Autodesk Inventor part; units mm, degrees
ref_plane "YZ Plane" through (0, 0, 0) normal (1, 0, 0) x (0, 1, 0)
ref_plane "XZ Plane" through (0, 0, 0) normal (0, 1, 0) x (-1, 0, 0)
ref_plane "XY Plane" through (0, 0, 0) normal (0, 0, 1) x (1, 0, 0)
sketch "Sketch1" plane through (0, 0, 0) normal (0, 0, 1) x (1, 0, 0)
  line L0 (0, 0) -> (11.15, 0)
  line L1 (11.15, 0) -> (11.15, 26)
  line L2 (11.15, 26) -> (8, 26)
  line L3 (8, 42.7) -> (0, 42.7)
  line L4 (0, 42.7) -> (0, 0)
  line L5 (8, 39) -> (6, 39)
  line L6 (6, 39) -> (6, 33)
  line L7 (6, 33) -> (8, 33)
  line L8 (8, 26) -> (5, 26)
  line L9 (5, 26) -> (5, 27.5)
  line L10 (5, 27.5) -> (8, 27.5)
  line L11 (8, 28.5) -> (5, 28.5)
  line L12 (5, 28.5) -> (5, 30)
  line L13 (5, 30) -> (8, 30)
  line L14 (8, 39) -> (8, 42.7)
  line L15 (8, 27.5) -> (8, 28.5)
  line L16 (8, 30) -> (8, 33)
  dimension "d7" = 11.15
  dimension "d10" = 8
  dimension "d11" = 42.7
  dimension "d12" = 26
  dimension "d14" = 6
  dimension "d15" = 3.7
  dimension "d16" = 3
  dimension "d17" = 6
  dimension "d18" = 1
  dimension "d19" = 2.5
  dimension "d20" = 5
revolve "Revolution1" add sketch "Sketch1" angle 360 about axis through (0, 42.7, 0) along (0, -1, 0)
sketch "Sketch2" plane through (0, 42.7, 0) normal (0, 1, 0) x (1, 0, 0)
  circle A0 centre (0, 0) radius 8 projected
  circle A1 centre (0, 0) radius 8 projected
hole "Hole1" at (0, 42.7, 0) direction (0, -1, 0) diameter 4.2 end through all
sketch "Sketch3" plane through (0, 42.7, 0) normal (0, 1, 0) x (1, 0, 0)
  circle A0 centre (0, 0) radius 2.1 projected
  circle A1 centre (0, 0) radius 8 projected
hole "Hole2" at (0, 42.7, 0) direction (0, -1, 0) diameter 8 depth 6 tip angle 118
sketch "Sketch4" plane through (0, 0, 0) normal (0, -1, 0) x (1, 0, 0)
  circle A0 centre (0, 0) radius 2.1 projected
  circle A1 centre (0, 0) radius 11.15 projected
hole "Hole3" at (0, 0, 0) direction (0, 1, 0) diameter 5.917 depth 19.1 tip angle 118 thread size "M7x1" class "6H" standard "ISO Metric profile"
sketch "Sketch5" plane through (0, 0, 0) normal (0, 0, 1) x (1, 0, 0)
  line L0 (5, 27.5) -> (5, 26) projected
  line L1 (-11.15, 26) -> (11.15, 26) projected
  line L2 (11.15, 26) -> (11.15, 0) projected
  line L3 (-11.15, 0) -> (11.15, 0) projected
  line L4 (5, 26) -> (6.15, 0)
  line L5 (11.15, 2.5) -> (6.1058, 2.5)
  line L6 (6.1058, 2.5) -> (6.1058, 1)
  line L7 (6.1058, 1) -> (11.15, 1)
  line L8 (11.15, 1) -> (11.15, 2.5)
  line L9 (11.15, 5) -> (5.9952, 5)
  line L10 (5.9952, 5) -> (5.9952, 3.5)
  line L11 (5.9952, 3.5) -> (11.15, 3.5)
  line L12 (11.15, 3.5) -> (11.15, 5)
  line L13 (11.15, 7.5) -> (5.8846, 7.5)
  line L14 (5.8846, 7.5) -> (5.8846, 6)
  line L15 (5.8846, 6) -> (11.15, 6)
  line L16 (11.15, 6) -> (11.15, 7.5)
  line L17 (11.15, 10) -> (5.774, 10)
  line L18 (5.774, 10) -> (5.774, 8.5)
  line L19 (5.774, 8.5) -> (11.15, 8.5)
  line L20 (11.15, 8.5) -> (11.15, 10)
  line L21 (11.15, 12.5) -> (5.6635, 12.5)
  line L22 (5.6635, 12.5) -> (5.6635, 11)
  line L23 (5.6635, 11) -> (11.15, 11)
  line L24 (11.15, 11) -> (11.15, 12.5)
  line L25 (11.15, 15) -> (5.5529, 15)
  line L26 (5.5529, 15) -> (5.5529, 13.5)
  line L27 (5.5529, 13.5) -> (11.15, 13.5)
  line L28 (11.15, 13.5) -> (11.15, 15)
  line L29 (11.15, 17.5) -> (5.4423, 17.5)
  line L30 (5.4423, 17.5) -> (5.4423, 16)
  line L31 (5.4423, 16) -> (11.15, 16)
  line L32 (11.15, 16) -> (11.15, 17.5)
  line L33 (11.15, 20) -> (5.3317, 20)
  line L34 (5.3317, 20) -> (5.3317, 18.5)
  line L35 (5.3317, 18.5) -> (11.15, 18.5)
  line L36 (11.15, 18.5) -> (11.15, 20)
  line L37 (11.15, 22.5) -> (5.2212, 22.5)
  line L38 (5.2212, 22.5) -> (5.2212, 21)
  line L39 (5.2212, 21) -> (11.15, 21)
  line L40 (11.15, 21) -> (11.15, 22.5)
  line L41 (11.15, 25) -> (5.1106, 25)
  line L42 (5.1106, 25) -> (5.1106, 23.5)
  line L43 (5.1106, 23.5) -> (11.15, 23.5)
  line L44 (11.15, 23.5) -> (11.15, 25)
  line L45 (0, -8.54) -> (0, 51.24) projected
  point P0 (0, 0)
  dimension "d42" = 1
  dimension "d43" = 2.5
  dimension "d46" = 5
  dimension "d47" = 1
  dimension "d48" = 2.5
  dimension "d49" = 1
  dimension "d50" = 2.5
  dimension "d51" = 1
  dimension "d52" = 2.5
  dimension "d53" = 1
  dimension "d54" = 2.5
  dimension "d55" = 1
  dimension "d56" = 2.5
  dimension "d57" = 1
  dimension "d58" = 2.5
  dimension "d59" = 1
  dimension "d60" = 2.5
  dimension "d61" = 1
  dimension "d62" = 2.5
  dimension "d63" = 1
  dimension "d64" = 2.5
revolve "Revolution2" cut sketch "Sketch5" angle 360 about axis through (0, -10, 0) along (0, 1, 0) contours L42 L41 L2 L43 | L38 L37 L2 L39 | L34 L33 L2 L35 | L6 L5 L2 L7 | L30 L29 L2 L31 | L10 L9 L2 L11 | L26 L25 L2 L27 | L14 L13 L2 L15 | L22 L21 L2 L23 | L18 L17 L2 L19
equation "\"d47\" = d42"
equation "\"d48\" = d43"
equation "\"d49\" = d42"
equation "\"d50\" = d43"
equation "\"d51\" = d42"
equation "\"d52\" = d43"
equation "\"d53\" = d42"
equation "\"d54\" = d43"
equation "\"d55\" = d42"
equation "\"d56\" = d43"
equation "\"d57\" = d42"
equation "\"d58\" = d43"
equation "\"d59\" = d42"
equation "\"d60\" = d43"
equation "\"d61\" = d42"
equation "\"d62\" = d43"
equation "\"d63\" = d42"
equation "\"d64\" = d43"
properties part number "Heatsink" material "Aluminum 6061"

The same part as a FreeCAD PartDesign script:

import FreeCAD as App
import Part
import Sketcher

V = App.Vector


def add_polygon(sketch, points):
    """Adds a closed chain of lines whose ends are joined by coincident constraints."""
    first, n = sketch.GeometryCount, len(points)
    for a, b in zip(points, points[1:] + points[:1]):
        sketch.addGeometry(Part.LineSegment(App.Vector(*a, 0), App.Vector(*b, 0)), False)
    for i in range(n):
        sketch.addConstraint(Sketcher.Constraint("Coincident", first + i, 2, first + (i + 1) % n, 1))

doc = App.newDocument("Part")
params = doc.addObject("Spreadsheet::Sheet", "Params")
for row, (alias, value) in enumerate([
    ("sketch1_width", "3 mm"),
    ("sketch1_width2", "8 mm"),
    ("sketch1_height", "26 mm"),
    ("sketch1_height2", "1 mm"),
    ("sketch1_height3", "6 mm"),
    ("revolution_angle", "360 deg"),
    ("sketch2_diameter", "4.2 mm"),
    ("hole_diameter", "4.2 mm"),
    ("sketch3_diameter", "8 mm"),
    ("hole2_diameter", "8 mm"),
    ("hole2_depth", "6 mm"),
    ("hole3_diameter", "5.917 mm"),
    ("hole3_depth", "19.1 mm"),
    ("groove_angle", "360 deg"),
], start=1):
    params.set(f"A{row}", alias)
    params.set(f"B{row}", "=" + value)
    params.setAlias(f"B{row}", alias)

body = doc.addObject("PartDesign::Body", "Body")

sketch1 = body.newObject("Sketcher::SketchObject", "Sketch")
sketch1.AttachmentSupport = (doc.getObject("XY_Plane"), [""])
sketch1.MapMode = "FlatFace"
add_polygon(sketch1, [(0, 42.7), (0, 0), (11.2, 0), (11.2, 26), (5, 26), (5, 27.5), (8, 27.5), (8, 28.5), (5, 28.5), (5, 30), (8, 30), (8, 33), (6, 33), (6, 39), (8, 39), (8, 42.7)])
sketch1.addConstraint([
    Sketcher.Constraint("Vertical", 0),
    Sketcher.Constraint("Horizontal", 1),
    Sketcher.Constraint("Vertical", 2),
    Sketcher.Constraint("Horizontal", 3),
    Sketcher.Constraint("Vertical", 4),
    Sketcher.Constraint("Horizontal", 5),
    Sketcher.Constraint("Vertical", 6),
    Sketcher.Constraint("Horizontal", 7),
    Sketcher.Constraint("Vertical", 8),
    Sketcher.Constraint("Horizontal", 9),
    Sketcher.Constraint("Vertical", 10),
    Sketcher.Constraint("Horizontal", 11),
    Sketcher.Constraint("Vertical", 12),
    Sketcher.Constraint("Horizontal", 13),
    Sketcher.Constraint("Vertical", 14),
    Sketcher.Constraint("Horizontal", 15),
    Sketcher.Constraint("Coincident", 0, 2, -1, 1),
    Sketcher.Constraint("Vertical", 4, 2, 7, 2),
    Sketcher.Constraint("Vertical", 6, 2, 9, 2),
    Sketcher.Constraint("Vertical", 10, 2, 13, 2),
    Sketcher.Constraint("Equal", 4, 8),
    Sketcher.Constraint("Equal", 9, 10),
    Sketcher.Constraint("DistanceX", 5, 1, 5, 2, 3.0),
    Sketcher.Constraint("DistanceX", 15, 2, 15, 1, 8.0),
    Sketcher.Constraint("DistanceY", 2, 1, 2, 2, 26.0),
    Sketcher.Constraint("DistanceY", 6, 1, 6, 2, 1.0),
    Sketcher.Constraint("DistanceY", 12, 1, 12, 2, 6.0),
    Sketcher.Constraint("DistanceY", 0, 2, 0, 1, 42.7),
    Sketcher.Constraint("DistanceY", 14, 1, 14, 2, 3.7),
    Sketcher.Constraint("DistanceX", -1, 1, 11, 2, 6.0),
    Sketcher.Constraint("DistanceX", 1, 1, 1, 2, 11.15),
])
sketch1.setExpression("Constraints[38]", "Params.sketch1_width")
sketch1.setExpression("Constraints[39]", "Params.sketch1_width2")
sketch1.setExpression("Constraints[40]", "Params.sketch1_height")
sketch1.setExpression("Constraints[41]", "Params.sketch1_height2")
sketch1.setExpression("Constraints[42]", "Params.sketch1_height3")
revolution = body.newObject("PartDesign::Revolution", "Revolution")
revolution.Profile = sketch1
revolution.ReferenceAxis = (sketch1, ["V_Axis"])
revolution.setExpression("Angle", "Params.revolution_angle")

sketch2 = body.newObject("Sketcher::SketchObject", "Sketch001")
sketch2.AttachmentSupport = (doc.getObject("XZ_Plane"), [""])
sketch2.MapMode = "FlatFace"
sketch2.AttachmentOffset = App.Placement(V(0, 0, -42.7), App.Rotation())
sketch2.addGeometry(Part.Circle(V(0, 0, 0), V(0, 0, 1), 2.1), False)
sketch2.addConstraint([
    Sketcher.Constraint("Coincident", 0, 3, -1, 1),
    Sketcher.Constraint("Diameter", 0, 4.2),
])
sketch2.setExpression("Constraints[1]", "Params.sketch2_diameter")
doc.recompute()
hole = body.newObject("PartDesign::Hole", "Hole")
hole.Profile = sketch2
hole.ThreadType = "None"
hole.setExpression("Diameter", "Params.hole_diameter")
hole.DepthType = "ThroughAll"
hole.Reversed = True

sketch3 = body.newObject("Sketcher::SketchObject", "Sketch002")
sketch3.AttachmentSupport = (doc.getObject("XZ_Plane"), [""])
sketch3.MapMode = "FlatFace"
sketch3.AttachmentOffset = App.Placement(V(0, 0, -42.7), App.Rotation())
sketch3.addGeometry(Part.Circle(V(0, 0, 0), V(0, 0, 1), 4), False)
sketch3.addConstraint([
    Sketcher.Constraint("Coincident", 0, 3, -1, 1),
    Sketcher.Constraint("Diameter", 0, 8.0),
])
sketch3.setExpression("Constraints[1]", "Params.sketch3_diameter")
doc.recompute()
hole2 = body.newObject("PartDesign::Hole", "Hole001")
hole2.Profile = sketch3
hole2.ThreadType = "None"
hole2.setExpression("Diameter", "Params.hole2_diameter")
hole2.DepthType = "Dimension"
hole2.setExpression("Depth", "Params.hole2_depth")
hole2.DrillPoint = "Angled"
hole2.DrillPointAngle = 118
hole2.Reversed = True

sketch4 = body.newObject("Sketcher::SketchObject", "Sketch003")
sketch4.AttachmentSupport = (doc.getObject("XZ_Plane"), [""])
sketch4.MapMode = "FlatFace"
sketch4.addGeometry(Part.Circle(V(0, 0, 0), V(0, 0, 1), 3), False)
sketch4.addConstraint([
    Sketcher.Constraint("Coincident", 0, 3, -1, 1),
    Sketcher.Constraint("Diameter", 0, 5.917),
])
doc.recompute()
hole3 = body.newObject("PartDesign::Hole", "Hole002")
hole3.Profile = sketch4
hole3.ThreadType = "None"
hole3.setExpression("Diameter", "Params.hole3_diameter")
hole3.DepthType = "Dimension"
hole3.setExpression("Depth", "Params.hole3_depth")
hole3.DrillPoint = "Angled"
hole3.DrillPointAngle = 118

sketch5 = body.newObject("Sketcher::SketchObject", "Sketch004")
sketch5.AttachmentSupport = (doc.getObject("XY_Plane"), [""])
sketch5.MapMode = "FlatFace"
add_polygon(sketch5, [(5.1, 25), (5.1, 23.5), (11.2, 23.5), (11.2, 25)])
add_polygon(sketch5, [(5.2, 22.5), (5.2, 21), (11.2, 21), (11.2, 22.5)])
add_polygon(sketch5, [(5.3, 20), (5.3, 18.5), (11.2, 18.5), (11.2, 20)])
add_polygon(sketch5, [(6.1, 2.5), (6.1, 1), (11.2, 1), (11.2, 2.5)])
add_polygon(sketch5, [(5.4, 17.5), (5.4, 16), (11.2, 16), (11.2, 17.5)])
add_polygon(sketch5, [(6, 5), (6, 3.5), (11.2, 3.5), (11.2, 5)])
add_polygon(sketch5, [(5.6, 15), (5.6, 13.5), (11.2, 13.5), (11.2, 15)])
add_polygon(sketch5, [(5.9, 7.5), (5.9, 6), (11.2, 6), (11.2, 7.5)])
add_polygon(sketch5, [(5.7, 12.5), (5.7, 11), (11.2, 11), (11.2, 12.5)])
add_polygon(sketch5, [(5.8, 10), (5.8, 8.5), (11.2, 8.5), (11.2, 10)])
sketch5.addConstraint([
    Sketcher.Constraint("Vertical", 0),
    Sketcher.Constraint("Horizontal", 1),
    Sketcher.Constraint("Vertical", 2),
    Sketcher.Constraint("Horizontal", 3),
    Sketcher.Constraint("Vertical", 4),
    Sketcher.Constraint("Horizontal", 5),
    Sketcher.Constraint("Vertical", 6),
    Sketcher.Constraint("Horizontal", 7),
    Sketcher.Constraint("Vertical", 8),
    Sketcher.Constraint("Horizontal", 9),
    Sketcher.Constraint("Vertical", 10),
    Sketcher.Constraint("Horizontal", 11),
    Sketcher.Constraint("Vertical", 12),
    Sketcher.Constraint("Horizontal", 13),
    Sketcher.Constraint("Vertical", 14),
    Sketcher.Constraint("Horizontal", 15),
    Sketcher.Constraint("Vertical", 16),
    Sketcher.Constraint("Horizontal", 17),
    Sketcher.Constraint("Vertical", 18),
    Sketcher.Constraint("Horizontal", 19),
    Sketcher.Constraint("Vertical", 20),
    Sketcher.Constraint("Horizontal", 21),
    Sketcher.Constraint("Vertical", 22),
    Sketcher.Constraint("Horizontal", 23),
    Sketcher.Constraint("Vertical", 24),
    Sketcher.Constraint("Horizontal", 25),
    Sketcher.Constraint("Vertical", 26),
    Sketcher.Constraint("Horizontal", 27),
    Sketcher.Constraint("Vertical", 28),
    Sketcher.Constraint("Horizontal", 29),
    Sketcher.Constraint("Vertical", 30),
    Sketcher.Constraint("Horizontal", 31),
    Sketcher.Constraint("Vertical", 32),
    Sketcher.Constraint("Horizontal", 33),
    Sketcher.Constraint("Vertical", 34),
    Sketcher.Constraint("Horizontal", 35),
    Sketcher.Constraint("Vertical", 36),
    Sketcher.Constraint("Horizontal", 37),
    Sketcher.Constraint("Vertical", 38),
    Sketcher.Constraint("Horizontal", 39),
    Sketcher.Constraint("Vertical", 2, 2, 5, 2),
    Sketcher.Constraint("Vertical", 6, 2, 9, 2),
    Sketcher.Constraint("Vertical", 10, 2, 13, 2),
    Sketcher.Constraint("Vertical", 14, 2, 17, 2),
    Sketcher.Constraint("Vertical", 18, 2, 21, 2),
    Sketcher.Constraint("Vertical", 22, 2, 25, 2),
    Sketcher.Constraint("Vertical", 26, 2, 29, 2),
    Sketcher.Constraint("Vertical", 30, 2, 33, 2),
    Sketcher.Constraint("Vertical", 34, 2, 37, 2),
    Sketcher.Constraint("Equal", 2, 4),
    Sketcher.Constraint("Equal", 6, 8),
    Sketcher.Constraint("Equal", 10, 12),
    Sketcher.Constraint("Equal", 14, 16),
    Sketcher.Constraint("Equal", 18, 20),
    Sketcher.Constraint("Equal", 22, 24),
    Sketcher.Constraint("Equal", 26, 28),
    Sketcher.Constraint("Equal", 30, 32),
    Sketcher.Constraint("Equal", 34, 36),
    Sketcher.Constraint("DistanceY", -1, 1, 12, 2, 1.0),
    Sketcher.Constraint("DistanceY", -1, 1, 22, 2, 5.0),
    Sketcher.Constraint("DistanceY", 6, 2, 1, 2, 1.0),
    Sketcher.Constraint("DistanceY", 8, 2, 0, 2, 5.0),
    Sketcher.Constraint("DistanceY", 10, 2, 5, 2, 1.0),
    Sketcher.Constraint("DistanceY", 16, 2, 4, 2, 5.0),
    Sketcher.Constraint("DistanceY", 24, 2, 8, 2, 5.0),
    Sketcher.Constraint("DistanceY", 23, 2, 28, 2, 1.0),
    Sketcher.Constraint("DistanceY", 28, 2, 32, 2, 5.0),
    Sketcher.Constraint("DistanceY", 32, 2, 16, 2, 5.0),
    Sketcher.Constraint("DistanceY", 31, 2, 36, 2, 1.0),
    Sketcher.Constraint("DistanceX", 25, 1, 25, 2, 5.597),
    Sketcher.Constraint("DistanceX", 37, 1, 37, 2, 5.376),
    Sketcher.Constraint("DistanceX", -1, 1, 1, 2, 11.15),
    Sketcher.Constraint("DistanceX", 1, 1, 1, 2, 6.0394),
    Sketcher.Constraint("DistanceX", 5, 1, 5, 2, 5.9288),
    Sketcher.Constraint("DistanceX", 9, 1, 9, 2, 5.8183),
    Sketcher.Constraint("DistanceX", 13, 1, 13, 2, 5.0442),
    Sketcher.Constraint("DistanceX", 17, 1, 17, 2, 5.7077),
    Sketcher.Constraint("DistanceX", 21, 1, 21, 2, 5.1548),
    Sketcher.Constraint("DistanceX", 29, 1, 29, 2, 5.2654),
    Sketcher.Constraint("DistanceX", 33, 1, 33, 2, 5.4865),
])
groove = body.newObject("PartDesign::Groove", "Groove")
groove.Profile = sketch5
groove.ReferenceAxis = (sketch5, ["V_Axis"])
groove.setExpression("Angle", "Params.groove_angle")

doc.recompute()
